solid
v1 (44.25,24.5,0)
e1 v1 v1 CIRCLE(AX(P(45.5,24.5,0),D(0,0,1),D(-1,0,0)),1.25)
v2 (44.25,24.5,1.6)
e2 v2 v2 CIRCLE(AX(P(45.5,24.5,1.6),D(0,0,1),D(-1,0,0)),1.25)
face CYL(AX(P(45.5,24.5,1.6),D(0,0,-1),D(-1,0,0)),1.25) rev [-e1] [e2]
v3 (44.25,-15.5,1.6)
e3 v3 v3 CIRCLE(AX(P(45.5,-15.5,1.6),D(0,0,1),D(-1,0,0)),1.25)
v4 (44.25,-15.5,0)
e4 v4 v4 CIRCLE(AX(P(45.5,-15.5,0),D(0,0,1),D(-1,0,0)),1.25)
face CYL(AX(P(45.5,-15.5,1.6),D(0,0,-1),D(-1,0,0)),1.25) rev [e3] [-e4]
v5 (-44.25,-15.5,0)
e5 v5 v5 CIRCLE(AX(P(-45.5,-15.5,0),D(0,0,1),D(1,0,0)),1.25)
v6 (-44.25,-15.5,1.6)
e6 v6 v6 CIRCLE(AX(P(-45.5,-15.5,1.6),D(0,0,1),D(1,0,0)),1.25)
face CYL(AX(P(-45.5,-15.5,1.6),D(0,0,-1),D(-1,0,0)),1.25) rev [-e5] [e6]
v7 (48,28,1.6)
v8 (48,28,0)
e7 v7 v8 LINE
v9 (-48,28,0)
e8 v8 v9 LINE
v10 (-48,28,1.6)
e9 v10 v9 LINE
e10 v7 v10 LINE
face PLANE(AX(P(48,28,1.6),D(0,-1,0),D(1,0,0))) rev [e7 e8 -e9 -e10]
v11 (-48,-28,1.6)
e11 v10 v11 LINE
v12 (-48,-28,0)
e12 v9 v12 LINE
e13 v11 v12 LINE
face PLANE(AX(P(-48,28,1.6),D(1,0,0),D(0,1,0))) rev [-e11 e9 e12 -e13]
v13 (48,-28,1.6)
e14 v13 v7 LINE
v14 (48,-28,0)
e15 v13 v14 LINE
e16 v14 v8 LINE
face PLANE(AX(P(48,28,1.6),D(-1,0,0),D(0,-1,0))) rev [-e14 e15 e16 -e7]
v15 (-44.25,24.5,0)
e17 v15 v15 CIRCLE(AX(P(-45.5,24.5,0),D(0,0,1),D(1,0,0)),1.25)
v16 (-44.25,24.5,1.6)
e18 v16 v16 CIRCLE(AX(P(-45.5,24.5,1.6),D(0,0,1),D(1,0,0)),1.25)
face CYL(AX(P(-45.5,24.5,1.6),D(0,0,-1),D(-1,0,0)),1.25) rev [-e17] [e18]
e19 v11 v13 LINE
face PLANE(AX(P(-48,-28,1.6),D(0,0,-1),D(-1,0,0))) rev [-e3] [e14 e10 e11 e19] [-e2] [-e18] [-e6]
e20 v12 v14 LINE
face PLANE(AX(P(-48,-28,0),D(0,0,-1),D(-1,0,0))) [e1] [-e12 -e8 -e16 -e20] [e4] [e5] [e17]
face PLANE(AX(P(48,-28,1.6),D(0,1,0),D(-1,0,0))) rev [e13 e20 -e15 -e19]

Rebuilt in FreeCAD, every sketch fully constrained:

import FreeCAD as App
import Part
import Sketcher
from FreeCAD import Vector
Q = App.Units.Quantity

doc = App.newDocument("Part")
body = doc.addObject("PartDesign::Body", "Body")

# Sketch on XY plane
sketch1 = body.newObject("Sketcher::SketchObject", "Sketch")
sketch1.AttachmentSupport = (doc.getObject("XY_Plane"), [""])
sketch1.MapMode = "FlatFace"
sketch1.addGeometry(Part.LineSegment(Vector(-48, 28, 0), Vector(-48, -28, 0)), False)
sketch1.addGeometry(Part.LineSegment(Vector(-48, -28, 0), Vector(48, -28, 0)), False)
sketch1.addGeometry(Part.LineSegment(Vector(48, -28, 0), Vector(48, 28, 0)), False)
sketch1.addGeometry(Part.LineSegment(Vector(48, 28, 0), Vector(-48, 28, 0)), False)
sketch1.addGeometry(Part.Circle(Vector(-45.5, -15.5, 0), Vector(0, 0, 1), 1.2), False)
sketch1.addGeometry(Part.Circle(Vector(45.5, -15.5, 0), Vector(0, 0, 1), 1.2), False)
sketch1.addGeometry(Part.Circle(Vector(-45.5, 24.5, 0), Vector(0, 0, 1), 1.2), False)
sketch1.addGeometry(Part.Circle(Vector(45.5, 24.5, 0), Vector(0, 0, 1), 1.2), False)
sketch1.addConstraint(Sketcher.Constraint("Coincident", 0, 2, 1, 1))
sketch1.addConstraint(Sketcher.Constraint("Coincident", 1, 2, 2, 1))
sketch1.addConstraint(Sketcher.Constraint("Coincident", 2, 2, 3, 1))
sketch1.addConstraint(Sketcher.Constraint("Coincident", 3, 2, 0, 1))
sketch1.addConstraint(Sketcher.Constraint("Vertical", 0))
sketch1.addConstraint(Sketcher.Constraint("Horizontal", 1))
sketch1.addConstraint(Sketcher.Constraint("Vertical", 2))
sketch1.addConstraint(Sketcher.Constraint("Horizontal", 3))
sketch1.addConstraint(Sketcher.Constraint("Equal", 4, 5))
sketch1.addConstraint(Sketcher.Constraint("Equal", 5, 6))
sketch1.addConstraint(Sketcher.Constraint("Equal", 6, 7))
sketch1.addConstraint(Sketcher.Constraint("Symmetric", 0, 2, 2, 2, -1, 1))
sketch1.addConstraint(Sketcher.Constraint("Symmetric", 4, 3, 5, 3, -2))
sketch1.addConstraint(Sketcher.Constraint("Symmetric", 6, 3, 7, 3, -2))
sketch1.addConstraint(Sketcher.Constraint("Vertical", 4, 3, 6, 3))
sketch1.addConstraint(Sketcher.Constraint("Diameter", 4, Q("2.5 mm")))
sketch1.addConstraint(Sketcher.Constraint("DistanceX", 1, 1, 1, 2, Q("96 mm")))
sketch1.addConstraint(Sketcher.Constraint("DistanceY", 0, 2, 0, 1, Q("56 mm")))
sketch1.addConstraint(Sketcher.Constraint("DistanceX", 4, 3, 5, 3, Q("91 mm")))
sketch1.addConstraint(Sketcher.Constraint("DistanceY", 4, 3, 6, 3, Q("40 mm")))
sketch1.addConstraint(Sketcher.Constraint("DistanceY", 4, 3, -1, 1, Q("15.5 mm")))
pad1 = body.newObject("PartDesign::Pad", "Pad")
pad1.Profile = sketch1
pad1.Length = 1.6

doc.recompute()
